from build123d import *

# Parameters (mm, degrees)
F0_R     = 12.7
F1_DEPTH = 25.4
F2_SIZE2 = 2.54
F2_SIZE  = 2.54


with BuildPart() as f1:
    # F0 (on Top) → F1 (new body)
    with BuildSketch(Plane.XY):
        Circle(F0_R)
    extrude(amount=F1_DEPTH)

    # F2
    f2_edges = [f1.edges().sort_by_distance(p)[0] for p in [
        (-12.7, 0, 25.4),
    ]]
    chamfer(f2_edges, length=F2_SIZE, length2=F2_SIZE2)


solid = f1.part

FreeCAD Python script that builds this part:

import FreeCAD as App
import Part
import Sketcher
from FreeCAD import Vector
Q = App.Units.Quantity


def edges_at(feature, points):
    """Names of the edges that pass closest to the given points."""
    edges = feature.Shape.Edges
    near = lambda p: min(range(len(edges)), key=lambda i: edges[i].distToShape(Part.Vertex(*p))[0])
    return sorted({f"Edge{near(p) + 1}" for p in points})

doc = App.newDocument("Part")
params = doc.addObject("Spreadsheet::Sheet", "Params")
for row, (alias, value) in enumerate([
    ("sketch1_diameter", "1 in"),
    ("pad1_length", "1 in"),
    ("chamfer_size", "0.1 in"),
    ("chamfer_size2", "0.1 in"),
], start=1):
    params.set(f"A{row}", alias)
    params.set(f"B{row}", "=" + value)
    params.setAlias(f"B{row}", alias)

body = doc.addObject("PartDesign::Body", "Body")

sketch1 = doc.addObject("Sketcher::SketchObject", "Sketch")
body.addObject(sketch1)
sketch1.AttachmentSupport = (doc.XY_Plane, [""])
sketch1.MapMode = "FlatFace"
sketch1.addGeometry(Part.Circle(Vector(0, 0, 0), Vector(0, 0, 1), 12.7), False)
sketch1.addConstraint([
    Sketcher.Constraint("Coincident", 0, 3, -1, 1),
    Sketcher.Constraint("Diameter", 0, Q("1 in")),
])
sketch1.setExpression("Constraints[1]", "Params.sketch1_diameter")
pad1 = doc.addObject("PartDesign::Pad", "Pad")
body.addObject(pad1)
pad1.Profile = sketch1
pad1.setExpression("Length", "Params.pad1_length")
doc.recompute()

chamfer = doc.addObject("PartDesign::Chamfer", "Chamfer")
body.addObject(chamfer)
chamfer.Base = (pad1, edges_at(pad1, [(-12.7, 0, 25.4)]))
chamfer.ChamferType = "Two distances"
chamfer.setExpression("Size", "Params.chamfer_size")
chamfer.setExpression("Size2", "Params.chamfer_size2")

doc.recompute()
